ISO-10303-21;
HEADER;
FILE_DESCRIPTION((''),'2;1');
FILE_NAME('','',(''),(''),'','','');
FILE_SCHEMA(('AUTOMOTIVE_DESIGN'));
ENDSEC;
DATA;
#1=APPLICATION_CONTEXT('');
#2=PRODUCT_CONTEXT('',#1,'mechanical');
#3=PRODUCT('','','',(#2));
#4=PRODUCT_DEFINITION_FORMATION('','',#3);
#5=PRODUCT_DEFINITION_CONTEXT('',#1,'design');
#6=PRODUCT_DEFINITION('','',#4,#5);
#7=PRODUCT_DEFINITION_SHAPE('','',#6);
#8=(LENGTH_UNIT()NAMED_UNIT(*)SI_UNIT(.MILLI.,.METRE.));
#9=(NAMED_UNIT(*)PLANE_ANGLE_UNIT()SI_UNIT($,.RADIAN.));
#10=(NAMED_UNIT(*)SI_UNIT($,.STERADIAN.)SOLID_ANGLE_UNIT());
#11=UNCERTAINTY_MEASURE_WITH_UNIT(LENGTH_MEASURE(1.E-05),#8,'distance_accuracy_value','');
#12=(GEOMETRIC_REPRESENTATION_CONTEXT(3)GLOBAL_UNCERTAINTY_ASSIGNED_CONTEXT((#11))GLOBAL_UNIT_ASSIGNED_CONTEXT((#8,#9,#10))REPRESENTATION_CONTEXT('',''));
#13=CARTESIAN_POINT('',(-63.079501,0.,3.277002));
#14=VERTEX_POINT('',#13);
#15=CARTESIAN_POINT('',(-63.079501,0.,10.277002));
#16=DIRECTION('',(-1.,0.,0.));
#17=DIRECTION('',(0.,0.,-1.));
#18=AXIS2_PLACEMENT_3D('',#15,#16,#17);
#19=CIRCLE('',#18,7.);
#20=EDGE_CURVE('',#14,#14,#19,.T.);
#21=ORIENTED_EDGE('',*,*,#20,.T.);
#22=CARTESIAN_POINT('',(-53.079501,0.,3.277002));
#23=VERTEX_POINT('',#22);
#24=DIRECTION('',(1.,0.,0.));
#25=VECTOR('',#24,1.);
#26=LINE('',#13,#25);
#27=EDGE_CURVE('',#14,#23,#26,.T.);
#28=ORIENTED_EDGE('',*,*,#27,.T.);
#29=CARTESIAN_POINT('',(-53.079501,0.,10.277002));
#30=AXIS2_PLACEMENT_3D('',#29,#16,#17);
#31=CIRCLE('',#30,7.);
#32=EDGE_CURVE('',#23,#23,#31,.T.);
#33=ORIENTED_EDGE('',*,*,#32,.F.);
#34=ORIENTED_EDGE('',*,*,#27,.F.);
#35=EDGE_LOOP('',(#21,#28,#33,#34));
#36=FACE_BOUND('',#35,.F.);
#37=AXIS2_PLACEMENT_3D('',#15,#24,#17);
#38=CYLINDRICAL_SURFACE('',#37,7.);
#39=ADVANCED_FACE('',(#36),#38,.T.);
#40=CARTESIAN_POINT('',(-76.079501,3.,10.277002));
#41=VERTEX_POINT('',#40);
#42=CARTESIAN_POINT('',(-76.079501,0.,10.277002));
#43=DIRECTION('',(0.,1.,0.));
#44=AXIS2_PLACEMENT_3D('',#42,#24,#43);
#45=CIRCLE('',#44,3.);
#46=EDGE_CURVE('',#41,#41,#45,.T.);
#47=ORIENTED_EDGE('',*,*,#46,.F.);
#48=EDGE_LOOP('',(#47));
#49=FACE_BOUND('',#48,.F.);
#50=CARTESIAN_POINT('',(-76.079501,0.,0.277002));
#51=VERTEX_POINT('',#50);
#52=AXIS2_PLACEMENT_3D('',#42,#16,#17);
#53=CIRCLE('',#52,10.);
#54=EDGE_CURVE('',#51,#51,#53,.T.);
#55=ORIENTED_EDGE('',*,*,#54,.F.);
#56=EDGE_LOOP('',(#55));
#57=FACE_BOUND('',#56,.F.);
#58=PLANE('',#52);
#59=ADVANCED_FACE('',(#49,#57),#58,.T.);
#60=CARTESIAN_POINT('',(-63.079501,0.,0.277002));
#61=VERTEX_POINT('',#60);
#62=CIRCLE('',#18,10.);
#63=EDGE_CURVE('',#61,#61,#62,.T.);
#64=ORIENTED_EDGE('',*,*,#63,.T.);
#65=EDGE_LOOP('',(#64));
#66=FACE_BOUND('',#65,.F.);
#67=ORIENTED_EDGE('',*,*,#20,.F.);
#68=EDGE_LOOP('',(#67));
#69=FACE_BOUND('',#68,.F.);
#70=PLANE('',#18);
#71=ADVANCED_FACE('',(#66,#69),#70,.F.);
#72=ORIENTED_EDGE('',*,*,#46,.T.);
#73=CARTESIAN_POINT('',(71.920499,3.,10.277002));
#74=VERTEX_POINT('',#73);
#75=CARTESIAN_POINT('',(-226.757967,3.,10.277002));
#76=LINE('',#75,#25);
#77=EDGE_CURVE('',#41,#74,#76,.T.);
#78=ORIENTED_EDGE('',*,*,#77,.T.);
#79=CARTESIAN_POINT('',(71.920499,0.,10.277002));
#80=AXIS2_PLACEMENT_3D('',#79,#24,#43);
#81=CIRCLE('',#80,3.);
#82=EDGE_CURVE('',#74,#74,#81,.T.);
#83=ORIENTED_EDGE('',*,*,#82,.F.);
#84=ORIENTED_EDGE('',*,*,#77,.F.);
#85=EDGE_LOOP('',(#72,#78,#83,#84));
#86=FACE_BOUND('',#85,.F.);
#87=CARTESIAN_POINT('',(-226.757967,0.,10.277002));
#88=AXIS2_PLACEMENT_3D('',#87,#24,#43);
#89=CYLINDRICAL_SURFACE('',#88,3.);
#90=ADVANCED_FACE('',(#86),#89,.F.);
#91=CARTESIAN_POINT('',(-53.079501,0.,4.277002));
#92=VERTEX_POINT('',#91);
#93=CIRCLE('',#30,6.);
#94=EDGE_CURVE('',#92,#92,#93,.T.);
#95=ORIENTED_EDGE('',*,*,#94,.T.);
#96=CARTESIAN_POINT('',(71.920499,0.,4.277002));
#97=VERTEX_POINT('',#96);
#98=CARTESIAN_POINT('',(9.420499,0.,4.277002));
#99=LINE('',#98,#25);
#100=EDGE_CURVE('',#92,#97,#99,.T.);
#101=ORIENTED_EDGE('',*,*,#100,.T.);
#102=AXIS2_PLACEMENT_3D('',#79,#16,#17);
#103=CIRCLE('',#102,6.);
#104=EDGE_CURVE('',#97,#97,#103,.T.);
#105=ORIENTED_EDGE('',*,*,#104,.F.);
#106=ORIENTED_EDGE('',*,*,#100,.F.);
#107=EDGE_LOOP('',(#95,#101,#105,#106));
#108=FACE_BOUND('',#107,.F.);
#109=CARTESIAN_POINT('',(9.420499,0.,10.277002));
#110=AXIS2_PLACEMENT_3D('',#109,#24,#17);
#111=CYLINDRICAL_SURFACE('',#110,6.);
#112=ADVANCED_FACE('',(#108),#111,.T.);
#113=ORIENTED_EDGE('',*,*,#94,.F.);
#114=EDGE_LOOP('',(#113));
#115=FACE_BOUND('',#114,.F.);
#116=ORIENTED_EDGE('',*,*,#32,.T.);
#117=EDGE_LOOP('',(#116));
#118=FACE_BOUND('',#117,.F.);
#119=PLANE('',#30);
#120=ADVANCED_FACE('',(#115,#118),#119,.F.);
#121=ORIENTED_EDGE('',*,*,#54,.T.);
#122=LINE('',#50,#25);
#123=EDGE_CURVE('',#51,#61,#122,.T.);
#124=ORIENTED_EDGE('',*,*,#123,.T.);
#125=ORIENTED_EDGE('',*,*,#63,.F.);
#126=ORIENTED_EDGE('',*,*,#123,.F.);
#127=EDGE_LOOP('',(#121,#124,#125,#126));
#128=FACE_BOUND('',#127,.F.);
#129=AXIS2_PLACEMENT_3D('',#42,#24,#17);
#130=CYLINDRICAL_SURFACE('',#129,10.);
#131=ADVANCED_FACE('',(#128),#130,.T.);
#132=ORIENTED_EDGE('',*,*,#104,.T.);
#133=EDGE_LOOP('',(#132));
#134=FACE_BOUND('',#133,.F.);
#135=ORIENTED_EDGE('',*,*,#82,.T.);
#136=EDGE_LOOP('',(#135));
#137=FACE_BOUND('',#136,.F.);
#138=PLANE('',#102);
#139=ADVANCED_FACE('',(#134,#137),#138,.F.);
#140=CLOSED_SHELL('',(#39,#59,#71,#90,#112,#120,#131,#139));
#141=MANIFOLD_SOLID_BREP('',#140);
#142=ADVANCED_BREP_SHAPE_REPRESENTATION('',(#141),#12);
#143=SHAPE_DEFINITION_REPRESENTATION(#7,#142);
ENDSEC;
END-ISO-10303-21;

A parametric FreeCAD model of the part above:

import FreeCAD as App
import Part
import Sketcher

V = App.Vector
Q = App.Units.Quantity


def add_polygon(sketch, points):
    """Adds a closed chain of lines whose ends are joined by coincident constraints."""
    first, n = sketch.GeometryCount, len(points)
    for a, b in zip(points, points[1:] + points[:1]):
        sketch.addGeometry(Part.LineSegment(App.Vector(*a, 0), App.Vector(*b, 0)), False)
    for i in range(n):
        sketch.addConstraint(Sketcher.Constraint("Coincident", first + i, 2, first + (i + 1) % n, 1))

doc = App.newDocument("Part")
body = doc.addObject("PartDesign::Body", "Body")

sketch1 = body.newObject("Sketcher::SketchObject", "Sketch")
sketch1.AttachmentSupport = (doc.getObject("XZ_Plane"), [""])
sketch1.MapMode = "FlatFace"
add_polygon(sketch1, [(-53.1, 4.3), (71.9, 4.3), (71.9, 10.3), (-76.1, 10.3), (-76.1, 0.3), (-63.1, 0.3), (-63.1, 3.3), (-53.1, 3.3)])
sketch1.addGeometry(Part.LineSegment(V(71.9, 10.3, 0), V(-76.1, 10.3, 0)), True)
sketch1.addConstraint([
    Sketcher.Constraint("Horizontal", 0),
    Sketcher.Constraint("Vertical", 1),
    Sketcher.Constraint("Horizontal", 2),
    Sketcher.Constraint("Vertical", 3),
    Sketcher.Constraint("Horizontal", 4),
    Sketcher.Constraint("Vertical", 5),
    Sketcher.Constraint("Horizontal", 6),
    Sketcher.Constraint("Vertical", 7),
    Sketcher.Constraint("Horizontal", 8),
    Sketcher.Constraint("Coincident", 8, 1, 1, 2),
    Sketcher.Constraint("Vertical", 3, 2, 8, 2),
    Sketcher.Constraint("Equal", 6, 3),
    Sketcher.Constraint("DistanceX", 0, 1, 0, 2, Q("125 mm")),
    Sketcher.Constraint("DistanceX", 2, 2, 2, 1, Q("148 mm")),
    Sketcher.Constraint("DistanceX", 4, 1, 4, 2, Q("13 mm")),
    Sketcher.Constraint("DistanceY", 1, 1, 1, 2, Q("6 mm")),
    Sketcher.Constraint("DistanceY", 5, 1, 5, 2, Q("3 mm")),
    Sketcher.Constraint("DistanceY", -1, 1, 5, 2, Q("3.277002 mm")),
    Sketcher.Constraint("DistanceX", -1, 1, 0, 2, Q("71.920499 mm")),
])
revolution = body.newObject("PartDesign::Revolution", "Revolution")
revolution.Profile = sketch1
revolution.ReferenceAxis = (sketch1, ["Axis0"])
revolution.Angle = 360

sketch2 = body.newObject("Sketcher::SketchObject", "Sketch001")
sketch2.AttachmentSupport = (doc.getObject("YZ_Plane"), [""])
sketch2.MapMode = "FlatFace"
sketch2.AttachmentOffset = App.Placement(V(0, 0, -76.079501), App.Rotation())
sketch2.addGeometry(Part.Circle(V(0, 10.3, 0), V(0, 0, 1), 3), False)
sketch2.addConstraint([
    Sketcher.Constraint("PointOnObject", 0, 3, -2),
    Sketcher.Constraint("Diameter", 0, Q("6 mm")),
    Sketcher.Constraint("DistanceY", -1, 1, 0, 3, Q("10.277002 mm")),
])
doc.recompute()
hole = body.newObject("PartDesign::Hole", "Hole")
hole.Profile = sketch2
hole.ThreadType = "None"
hole.Diameter = 6
hole.DepthType = "ThroughAll"
hole.Reversed = True

doc.recompute()
